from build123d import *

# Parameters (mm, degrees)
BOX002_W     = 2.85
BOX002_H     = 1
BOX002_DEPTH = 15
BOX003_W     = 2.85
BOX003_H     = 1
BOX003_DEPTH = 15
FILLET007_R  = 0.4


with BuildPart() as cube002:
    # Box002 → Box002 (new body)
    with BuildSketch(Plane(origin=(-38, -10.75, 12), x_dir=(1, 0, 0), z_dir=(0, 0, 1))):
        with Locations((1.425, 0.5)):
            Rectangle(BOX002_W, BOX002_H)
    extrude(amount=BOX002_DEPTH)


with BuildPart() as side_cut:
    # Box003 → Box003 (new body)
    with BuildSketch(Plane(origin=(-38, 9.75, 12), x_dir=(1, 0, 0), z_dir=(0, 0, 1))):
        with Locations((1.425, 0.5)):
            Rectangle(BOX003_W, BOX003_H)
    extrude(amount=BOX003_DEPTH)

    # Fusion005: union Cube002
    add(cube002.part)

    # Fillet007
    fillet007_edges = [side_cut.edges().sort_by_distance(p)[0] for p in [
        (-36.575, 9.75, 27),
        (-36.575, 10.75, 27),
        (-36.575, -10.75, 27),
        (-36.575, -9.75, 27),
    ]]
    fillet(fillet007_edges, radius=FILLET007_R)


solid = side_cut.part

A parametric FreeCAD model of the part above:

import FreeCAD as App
import Part
import Sketcher
Q = App.Units.Quantity


def edges_at(feature, points):
    """Names of the edges that pass closest to the given points."""
    edges = feature.Shape.Edges
    near = lambda p: min(range(len(edges)), key=lambda i: edges[i].distToShape(Part.Vertex(*p))[0])
    return sorted({f"Edge{near(p) + 1}" for p in points})


def add_polygon(sketch, points):
    """Adds a closed chain of lines whose ends are joined by coincident constraints."""
    first, n = sketch.GeometryCount, len(points)
    for a, b in zip(points, points[1:] + points[:1]):
        sketch.addGeometry(Part.LineSegment(App.Vector(*a, 0), App.Vector(*b, 0)), False)
    for i in range(n):
        sketch.addConstraint(Sketcher.Constraint("Coincident", first + i, 2, first + (i + 1) % n, 1))

doc = App.newDocument("Part")
body = doc.addObject("PartDesign::Body", "Body")

sketch1 = doc.addObject("Sketcher::SketchObject", "Sketch")
body.addObject(sketch1)
sketch1.AttachmentSupport = (doc.XY_Plane, [""])
sketch1.MapMode = "FlatFace"
sketch1.AttachmentOffset = App.Placement(App.Vector(0, 0, 12), App.Rotation())
add_polygon(sketch1, [(-38, -9.8), (-38, -10.8), (-35.1, -10.8), (-35.1, -9.8)])
sketch1.addConstraint(Sketcher.Constraint("Vertical", 0))
sketch1.addConstraint(Sketcher.Constraint("Horizontal", 1))
sketch1.addConstraint(Sketcher.Constraint("Vertical", 2))
sketch1.addConstraint(Sketcher.Constraint("Horizontal", 3))
sketch1.addConstraint(Sketcher.Constraint("DistanceY", 0, 2, 0, 1, Q("1 mm")))
sketch1.addConstraint(Sketcher.Constraint("DistanceX", 0, 2, -1, 1, Q("38 mm")))
sketch1.addConstraint(Sketcher.Constraint("DistanceX", 1, 1, 1, 2, Q("2.85 mm")))
sketch1.addConstraint(Sketcher.Constraint("DistanceY", 0, 2, -1, 1, Q("10.75 mm")))
pad1 = doc.addObject("PartDesign::Pad", "Pad")
body.addObject(pad1)
pad1.Profile = sketch1
pad1.Length = 15
body2 = doc.addObject("PartDesign::Body", "Body001")
body2.AllowCompound = True

sketch2 = doc.addObject("Sketcher::SketchObject", "Sketch001")
body2.addObject(sketch2)
sketch2.AttachmentSupport = (doc.getObject("XY_Plane001"), [""])
sketch2.MapMode = "FlatFace"
sketch2.AttachmentOffset = App.Placement(App.Vector(0, 0, 12), App.Rotation())
add_polygon(sketch2, [(-38, 10.8), (-38, 9.8), (-35.1, 9.8), (-35.1, 10.8)])
sketch2.addConstraint(Sketcher.Constraint("Vertical", 0))
sketch2.addConstraint(Sketcher.Constraint("Horizontal", 1))
sketch2.addConstraint(Sketcher.Constraint("Vertical", 2))
sketch2.addConstraint(Sketcher.Constraint("Horizontal", 3))
sketch2.addConstraint(Sketcher.Constraint("DistanceY", 0, 2, 0, 1, Q("1 mm")))
sketch2.addConstraint(Sketcher.Constraint("DistanceX", 0, 2, -1, 1, Q("38 mm")))
sketch2.addConstraint(Sketcher.Constraint("DistanceX", 1, 1, 1, 2, Q("2.85 mm")))
sketch2.addConstraint(Sketcher.Constraint("DistanceY", -1, 1, 0, 2, Q("9.75 mm")))
pad2 = doc.addObject("PartDesign::Pad", "Pad001")
body2.addObject(pad2)
pad2.Profile = sketch2
pad2.Length = 15
doc.recompute()

boolean = doc.addObject("PartDesign::Boolean", "Boolean")
body2.addObject(boolean)
boolean.Type = "Fuse"
boolean.addObjects([body])
doc.recompute()

fillet = doc.addObject("PartDesign::Fillet", "Fillet")
body2.addObject(fillet)
fillet.Base = (boolean, edges_at(boolean, [
    (-36.575, 9.75, 27),
    (-36.575, 10.75, 27),
    (-36.575, -10.75, 27),
    (-36.575, -9.75, 27),
]))
fillet.Radius = 0.4

doc.recompute()
